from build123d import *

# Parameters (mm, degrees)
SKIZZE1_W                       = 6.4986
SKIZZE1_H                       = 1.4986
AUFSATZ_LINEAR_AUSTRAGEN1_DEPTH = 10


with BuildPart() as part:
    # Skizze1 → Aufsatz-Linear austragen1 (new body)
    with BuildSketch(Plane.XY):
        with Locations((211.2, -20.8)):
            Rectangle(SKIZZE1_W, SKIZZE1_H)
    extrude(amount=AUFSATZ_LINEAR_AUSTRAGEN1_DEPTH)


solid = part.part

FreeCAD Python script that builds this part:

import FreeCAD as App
import Part
import Sketcher
from FreeCAD import Vector

doc = App.newDocument("Part")
body = doc.addObject("PartDesign::Body", "Body")

# Sketch on XY plane
sketch1 = body.newObject("Sketcher::SketchObject", "Sketch")
sketch1.AttachmentSupport = (doc.getObject("XY_Plane"), [""])
sketch1.MapMode = "FlatFace"
sketch1.addGeometry([
    Part.LineSegment(Vector(208, -20.1, 0), Vector(208, -21.5, 0)),
    Part.LineSegment(Vector(208, -21.5, 0), Vector(214.4, -21.5, 0)),
    Part.LineSegment(Vector(214.4, -21.5, 0), Vector(214.4, -20.1, 0)),
    Part.LineSegment(Vector(214.4, -20.1, 0), Vector(208, -20.1, 0)),
], False)
sketch1.addConstraint([
    Sketcher.Constraint("Coincident", 0, 2, 1, 1),
    Sketcher.Constraint("Coincident", 1, 2, 2, 1),
    Sketcher.Constraint("Coincident", 2, 2, 3, 1),
    Sketcher.Constraint("Coincident", 3, 2, 0, 1),
    Sketcher.Constraint("Vertical", 0),
    Sketcher.Constraint("Horizontal", 1),
    Sketcher.Constraint("Vertical", 2),
    Sketcher.Constraint("Horizontal", 3),
    Sketcher.Constraint("DistanceX", 1, 1, 1, 2, 6.4986),
    Sketcher.Constraint("DistanceY", 0, 2, 0, 1, 1.4986),
    Sketcher.Constraint("DistanceX", -1, 1, 0, 2, 207.9507),
    Sketcher.Constraint("DistanceY", 0, 2, -1, 1, 21.5493),
])
pad1 = body.newObject("PartDesign::Pad", "Pad")
pad1.Profile = sketch1
pad1.Length = 10

doc.recompute()
